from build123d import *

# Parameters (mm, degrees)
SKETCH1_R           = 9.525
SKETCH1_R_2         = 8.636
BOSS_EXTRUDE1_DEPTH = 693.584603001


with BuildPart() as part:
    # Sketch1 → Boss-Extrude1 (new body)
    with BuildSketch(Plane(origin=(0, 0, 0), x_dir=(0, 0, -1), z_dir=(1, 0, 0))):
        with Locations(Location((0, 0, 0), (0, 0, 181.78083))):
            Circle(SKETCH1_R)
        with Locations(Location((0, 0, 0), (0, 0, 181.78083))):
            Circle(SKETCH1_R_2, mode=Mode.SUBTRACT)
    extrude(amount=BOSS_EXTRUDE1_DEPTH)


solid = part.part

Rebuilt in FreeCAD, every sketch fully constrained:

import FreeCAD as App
import Part
import Sketcher
from FreeCAD import Vector
Q = App.Units.Quantity

doc = App.newDocument("Part")
body = doc.addObject("PartDesign::Body", "Body")

# Sketch on YZ plane
sketch1 = body.newObject("Sketcher::SketchObject", "Sketch")
sketch1.AttachmentSupport = (doc.getObject("YZ_Plane"), [""])
sketch1.MapMode = "FlatFace"
sketch1.addGeometry([
    Part.Circle(Vector(0, 0, 0), Vector(0, 0, 1), 10),
    Part.Circle(Vector(0, 0, 0), Vector(0, 0, 1), 9),
], False)
sketch1.addConstraint([
    Sketcher.Constraint("Coincident", 0, 3, -1, 1),
    Sketcher.Constraint("Coincident", 1, 3, -1, 1),
    Sketcher.Constraint("Diameter", 0, Q("0.75 in")),
    Sketcher.Constraint("Diameter", 1, Q("0.68 in")),
])
pad1 = body.newObject("PartDesign::Pad", "Pad")
pad1.Profile = sketch1
pad1.Length = 693.584603

doc.recompute()
